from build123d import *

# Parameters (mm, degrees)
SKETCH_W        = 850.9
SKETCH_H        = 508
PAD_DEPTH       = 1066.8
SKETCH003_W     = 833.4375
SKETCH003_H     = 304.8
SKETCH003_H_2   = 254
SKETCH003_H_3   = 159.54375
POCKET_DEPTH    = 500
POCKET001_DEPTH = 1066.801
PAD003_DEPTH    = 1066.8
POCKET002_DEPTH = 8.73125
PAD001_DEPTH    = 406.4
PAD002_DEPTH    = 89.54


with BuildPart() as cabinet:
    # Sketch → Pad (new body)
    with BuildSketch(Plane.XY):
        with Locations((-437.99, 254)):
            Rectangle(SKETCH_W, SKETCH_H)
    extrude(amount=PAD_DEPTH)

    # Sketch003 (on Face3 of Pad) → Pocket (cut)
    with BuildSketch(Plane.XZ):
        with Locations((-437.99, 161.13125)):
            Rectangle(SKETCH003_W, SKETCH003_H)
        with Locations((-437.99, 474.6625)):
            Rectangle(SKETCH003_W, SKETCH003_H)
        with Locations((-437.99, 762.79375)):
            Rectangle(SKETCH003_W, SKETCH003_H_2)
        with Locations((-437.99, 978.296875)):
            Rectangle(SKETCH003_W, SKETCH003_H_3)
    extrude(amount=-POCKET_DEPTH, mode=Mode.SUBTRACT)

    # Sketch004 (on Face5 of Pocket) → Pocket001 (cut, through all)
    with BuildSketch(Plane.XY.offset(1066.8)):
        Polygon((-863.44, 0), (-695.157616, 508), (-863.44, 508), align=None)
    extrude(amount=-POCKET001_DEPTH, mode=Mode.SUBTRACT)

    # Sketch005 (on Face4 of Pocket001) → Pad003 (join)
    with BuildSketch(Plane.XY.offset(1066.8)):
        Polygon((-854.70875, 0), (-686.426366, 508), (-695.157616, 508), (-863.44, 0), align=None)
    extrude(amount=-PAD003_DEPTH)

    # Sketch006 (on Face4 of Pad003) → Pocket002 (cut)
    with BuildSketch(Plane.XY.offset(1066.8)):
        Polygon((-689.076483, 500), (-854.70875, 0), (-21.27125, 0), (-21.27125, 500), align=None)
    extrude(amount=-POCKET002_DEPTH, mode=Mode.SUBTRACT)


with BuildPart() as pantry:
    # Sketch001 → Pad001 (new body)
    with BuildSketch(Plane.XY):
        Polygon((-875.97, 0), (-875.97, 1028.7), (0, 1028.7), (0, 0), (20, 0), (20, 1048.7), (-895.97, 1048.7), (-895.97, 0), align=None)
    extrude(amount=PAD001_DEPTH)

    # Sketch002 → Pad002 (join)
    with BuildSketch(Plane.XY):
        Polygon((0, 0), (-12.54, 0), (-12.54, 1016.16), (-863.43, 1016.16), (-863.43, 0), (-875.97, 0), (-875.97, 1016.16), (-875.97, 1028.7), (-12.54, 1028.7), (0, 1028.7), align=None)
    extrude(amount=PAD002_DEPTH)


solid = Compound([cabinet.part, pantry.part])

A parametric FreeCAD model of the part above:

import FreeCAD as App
import Part
import Sketcher
from FreeCAD import Vector
Q = App.Units.Quantity


def add_polygon(sketch, points):
    """Adds a closed chain of lines whose ends are joined by coincident constraints."""
    first, n = sketch.GeometryCount, len(points)
    for a, b in zip(points, points[1:] + points[:1]):
        sketch.addGeometry(Part.LineSegment(App.Vector(*a, 0), App.Vector(*b, 0)), False)
    for i in range(n):
        sketch.addConstraint(Sketcher.Constraint("Coincident", first + i, 2, first + (i + 1) % n, 1))

doc = App.newDocument("Part")
body = doc.addObject("PartDesign::Body", "Body")

# Sketch on XY plane
sketch1 = body.newObject("Sketcher::SketchObject", "Sketch")
sketch1.AttachmentSupport = (doc.getObject("XY_Plane"), [""])
sketch1.MapMode = "FlatFace"
add_polygon(sketch1, [(-863.44, 508), (-863.44, 0), (-12.54, 0), (-12.54, 508)])  # lines 0-3
sketch1.addConstraint([
    Sketcher.Constraint("Vertical", 0),
    Sketcher.Constraint("Horizontal", 1),
    Sketcher.Constraint("Vertical", 2),
    Sketcher.Constraint("Horizontal", 3),
    Sketcher.Constraint("PointOnObject", 0, 2, -1),
    Sketcher.Constraint("DistanceY", 0, 2, 0, 1, Q("20 in")),
    Sketcher.Constraint("DistanceX", 1, 1, 1, 2, Q("33.5 in")),
    Sketcher.Constraint("DistanceX", 0, 2, -1, 1, 863.44),
])
pad1 = body.newObject("PartDesign::Pad", "Pad")
pad1.Profile = sketch1
pad1.Length = Q("42 in")

# Sketch on XZ plane
sketch2 = body.newObject("Sketcher::SketchObject", "Sketch001")
sketch2.AttachmentSupport = (doc.getObject("XZ_Plane"), [""])
sketch2.MapMode = "FlatFace"
add_polygon(sketch2, [(-854.70875, 313.53125), (-854.70875, 8.73125), (-21.27125, 8.73125), (-21.27125, 313.53125)])  # lines 0-3
add_polygon(sketch2, [(-854.70875, 627.0625), (-854.70875, 322.2625), (-21.27125, 322.2625), (-21.27125, 627.0625)])  # lines 4-7
add_polygon(sketch2, [(-854.70875, 889.79375), (-854.70875, 635.79375), (-21.27125, 635.79375), (-21.27125, 889.79375)])  # lines 8-11
add_polygon(sketch2, [(-854.70875, 1058.06875), (-854.70875, 898.525), (-21.27125, 898.525), (-21.27125, 1058.06875)])  # lines 12-15
sketch2.addConstraint([
    Sketcher.Constraint("Vertical", 0),
    Sketcher.Constraint("Horizontal", 1),
    Sketcher.Constraint("Vertical", 2),
    Sketcher.Constraint("Horizontal", 3),
    Sketcher.Constraint("Vertical", 4),
    Sketcher.Constraint("Horizontal", 5),
    Sketcher.Constraint("Vertical", 6),
    Sketcher.Constraint("Horizontal", 7),
    Sketcher.Constraint("Vertical", 8),
    Sketcher.Constraint("Horizontal", 9),
    Sketcher.Constraint("Vertical", 10),
    Sketcher.Constraint("Horizontal", 11),
    Sketcher.Constraint("Vertical", 12),
    Sketcher.Constraint("Horizontal", 13),
    Sketcher.Constraint("Vertical", 14),
    Sketcher.Constraint("Horizontal", 15),
    Sketcher.Constraint("Vertical", 3, 2, 4, 2),
    Sketcher.Constraint("Vertical", 2, 2, 5, 2),
    Sketcher.Constraint("Vertical", 7, 2, 8, 2),
    Sketcher.Constraint("Vertical", 6, 2, 9, 2),
    Sketcher.Constraint("Vertical", 11, 2, 12, 2),
    Sketcher.Constraint("Vertical", 10, 2, 13, 2),
    Sketcher.Constraint("Equal", 2, 4),
    Sketcher.Constraint("DistanceY", 0, 2, 0, 1, Q("12 in")),
    Sketcher.Constraint("DistanceY", 8, 2, 8, 1, Q("10 in")),
    Sketcher.Constraint("DistanceX", 1, 1, 1, 2, Q("32.8125 in")),
    Sketcher.Constraint("DistanceY", 12, 2, 12, 1, Q("6.28125 in")),
    Sketcher.Constraint("DistanceY", -1, 1, 0, 2, Q("0.34375 in")),
    Sketcher.Constraint("DistanceY", -1, 1, 4, 2, Q("12.6875 in")),
    Sketcher.Constraint("DistanceY", -1, 1, 8, 2, Q("25.03125 in")),
    Sketcher.Constraint("DistanceY", -1, 1, 12, 2, Q("35.375 in")),
    Sketcher.Constraint("DistanceX", 0, 2, -1, 1, 854.70875),
])
pocket1 = body.newObject("PartDesign::Pocket", "Pocket")
pocket1.Profile = sketch2
pocket1.Length = 500

# Sketch on XY plane
sketch3 = body.newObject("Sketcher::SketchObject", "Sketch002")
sketch3.AttachmentSupport = (doc.getObject("XY_Plane"), [""])
sketch3.MapMode = "FlatFace"
sketch3.AttachmentOffset = App.Placement(Vector(0, 0, 42 * 25.4), App.Rotation())
add_polygon(sketch3, [(-863.44, 0), (-695.157616, 508), (-863.44, 508)])  # lines 0-2
sketch3.addConstraint([
    Sketcher.Constraint("Horizontal", 1),
    Sketcher.Constraint("Vertical", 2),
    Sketcher.Constraint("PointOnObject", 2, 2, -1),
    Sketcher.Constraint("DistanceY", 2, 2, 2, 1, Q("20 in")),
    Sketcher.Constraint("DistanceX", 1, 2, -1, 1, 863.44),
    Sketcher.Constraint("DistanceX", 1, 2, 1, 1, 168.282384),
])
pocket2 = body.newObject("PartDesign::Pocket", "Pocket001")
pocket2.Profile = sketch3
pocket2.Type = "ThroughAll"

# Sketch on XY plane
sketch4 = body.newObject("Sketcher::SketchObject", "Sketch003")
sketch4.AttachmentSupport = (doc.getObject("XY_Plane"), [""])
sketch4.MapMode = "FlatFace"
sketch4.AttachmentOffset = App.Placement(Vector(0, 0, 42 * 25.4), App.Rotation())
add_polygon(sketch4, [(-854.70875, 0), (-686.426366, 508), (-695.157616, 508), (-863.44, 0)])  # lines 0-3
sketch4.addConstraint([
    Sketcher.Constraint("Horizontal", 1),
    Sketcher.Constraint("Horizontal", 3),
    Sketcher.Constraint("PointOnObject", 2, 2, -1),
    Sketcher.Constraint("Parallel", 0, 2),
    Sketcher.Constraint("DistanceY", -1, 1, 0, 2, Q("20 in")),
    Sketcher.Constraint("DistanceX", 1, 2, 1, 1, Q("0.34375 in")),
    Sketcher.Constraint("DistanceX", 2, 2, -1, 1, 863.44),
    Sketcher.Constraint("Distance", 0, 535.147607),
])
pad2 = body.newObject("PartDesign::Pad", "Pad001")
pad2.Profile = sketch4
pad2.Length = Q("42 in")
pad2.Reversed = True

# Sketch on XY plane
sketch5 = body.newObject("Sketcher::SketchObject", "Sketch004")
sketch5.AttachmentSupport = (doc.getObject("XY_Plane"), [""])
sketch5.MapMode = "FlatFace"
sketch5.AttachmentOffset = App.Placement(Vector(0, 0, 42 * 25.4), App.Rotation())
add_polygon(sketch5, [(-689.076483, 500), (-854.70875, 0), (-21.27125, 0), (-21.27125, 500)])  # lines 0-3
sketch5.addConstraint([
    Sketcher.Constraint("Horizontal", 1),
    Sketcher.Constraint("Vertical", 2),
    Sketcher.Constraint("Horizontal", 3),
    Sketcher.Constraint("PointOnObject", 0, 2, -1),
    Sketcher.Constraint("DistanceX", 1, 1, 1, 2, Q("32.8125 in")),
    Sketcher.Constraint("DistanceY", 2, 1, 2, 2, 500.0),
    Sketcher.Constraint("DistanceX", 3, 2, 3, 1, 667.805233),
    Sketcher.Constraint("DistanceX", 0, 2, -1, 1, 854.70875),
])
pocket3 = body.newObject("PartDesign::Pocket", "Pocket002")
pocket3.Profile = sketch5
pocket3.Length = Q("0.34375 in")
body2 = doc.addObject("PartDesign::Body", "Body001")

# Sketch on XY plane
sketch6 = body2.newObject("Sketcher::SketchObject", "Sketch005")
sketch6.AttachmentSupport = (doc.getObject("XY_Plane001"), [""])
sketch6.MapMode = "FlatFace"
add_polygon(sketch6, [(-875.97, 0), (-875.97, 1028.7), (0, 1028.7), (0, 0), (20, 0), (20, 1048.7), (-895.97, 1048.7), (-895.97, 0)])  # lines 0-7
sketch6.addConstraint([
    Sketcher.Constraint("Vertical", 0),
    Sketcher.Constraint("Horizontal", 1),
    Sketcher.Constraint("Vertical", 2),
    Sketcher.Constraint("Horizontal", 3),
    Sketcher.Constraint("Vertical", 4),
    Sketcher.Constraint("Horizontal", 5),
    Sketcher.Constraint("Vertical", 6),
    Sketcher.Constraint("Horizontal", 7),
    Sketcher.Constraint("Coincident", 2, 2, -1, 1),
    Sketcher.Constraint("PointOnObject", 6, 2, -1),
    Sketcher.Constraint("Equal", 3, 7),
    Sketcher.Constraint("DistanceY", 0, 1, 0, 2, Q("40.5 in")),
    Sketcher.Constraint("DistanceX", 1, 1, 1, 2, 875.97),
    Sketcher.Constraint("DistanceX", 3, 1, 3, 2, 20.0),
    Sketcher.Constraint("DistanceY", 4, 1, 4, 2, 1048.7),
])
pad3 = body2.newObject("PartDesign::Pad", "Pad002")
pad3.Profile = sketch6
pad3.Length = Q("16 in")

# Sketch on XY plane
sketch7 = body2.newObject("Sketcher::SketchObject", "Sketch006")
sketch7.AttachmentSupport = (doc.getObject("XY_Plane001"), [""])
sketch7.MapMode = "FlatFace"
add_polygon(sketch7, [(-12.54, 0), (0, 0), (0, 1028.7), (-875.97, 1028.7), (-875.97, 0), (-863.43, 0), (-863.43, 1016.16), (-12.54, 1016.16)])  # lines 0-7
sketch7.addConstraint([
    Sketcher.Constraint("Horizontal", 0),
    Sketcher.Constraint("Vertical", 1),
    Sketcher.Constraint("Horizontal", 2),
    Sketcher.Constraint("Vertical", 3),
    Sketcher.Constraint("Horizontal", 4),
    Sketcher.Constraint("Vertical", 5),
    Sketcher.Constraint("Horizontal", 6),
    Sketcher.Constraint("Vertical", 7),
    Sketcher.Constraint("Coincident", 0, 2, -1, 1),
    Sketcher.Constraint("PointOnObject", 3, 2, -1),
    Sketcher.Constraint("Equal", 0, 4),
    Sketcher.Constraint("DistanceY", 1, 1, 1, 2, Q("40.5 in")),
    Sketcher.Constraint("DistanceX", 0, 1, 0, 2, 12.54),
    Sketcher.Constraint("DistanceX", 2, 2, 2, 1, 875.97),
    Sketcher.Constraint("DistanceY", 5, 1, 5, 2, 1016.16),
])
pad4 = body2.newObject("PartDesign::Pad", "Pad003")
pad4.Profile = sketch7
pad4.Length = 89.54

doc.recompute()
